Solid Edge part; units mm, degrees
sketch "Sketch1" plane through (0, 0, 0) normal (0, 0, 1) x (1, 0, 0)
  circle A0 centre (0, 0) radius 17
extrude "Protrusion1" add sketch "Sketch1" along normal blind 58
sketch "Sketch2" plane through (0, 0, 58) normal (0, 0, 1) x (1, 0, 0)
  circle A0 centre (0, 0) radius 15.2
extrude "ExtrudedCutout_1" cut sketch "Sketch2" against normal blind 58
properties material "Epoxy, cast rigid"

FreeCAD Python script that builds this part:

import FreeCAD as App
import Part
import Sketcher
from FreeCAD import Vector

doc = App.newDocument("Part")
body = doc.addObject("PartDesign::Body", "Body")

sketch1 = body.newObject("Sketcher::SketchObject", "Sketch")
sketch1.AttachmentSupport = (doc.getObject("XY_Plane"), [""])
sketch1.MapMode = "FlatFace"
sketch1.addGeometry(Part.Circle(Vector(0, 0, 0), Vector(0, 0, 1), 17), False)
sketch1.addConstraint(Sketcher.Constraint("Coincident", 0, 3, -1, 1))
sketch1.addConstraint(Sketcher.Constraint("Diameter", 0, 34.0))
pad1 = body.newObject("PartDesign::Pad", "Pad")
pad1.Profile = sketch1
pad1.Length = 58

sketch2 = body.newObject("Sketcher::SketchObject", "Sketch001")
sketch2.AttachmentSupport = (doc.getObject("XY_Plane"), [""])
sketch2.MapMode = "FlatFace"
sketch2.AttachmentOffset = App.Placement(Vector(0, 0, 58), App.Rotation())
sketch2.addGeometry(Part.Circle(Vector(0, 0, 0), Vector(0, 0, 1), 15), False)
sketch2.addConstraint(Sketcher.Constraint("Coincident", 0, 3, -1, 1))
sketch2.addConstraint(Sketcher.Constraint("Diameter", 0, 30.4))
pocket1 = body.newObject("PartDesign::Pocket", "Pocket")
pocket1.Profile = sketch2
pocket1.Length = 58

doc.recompute()
